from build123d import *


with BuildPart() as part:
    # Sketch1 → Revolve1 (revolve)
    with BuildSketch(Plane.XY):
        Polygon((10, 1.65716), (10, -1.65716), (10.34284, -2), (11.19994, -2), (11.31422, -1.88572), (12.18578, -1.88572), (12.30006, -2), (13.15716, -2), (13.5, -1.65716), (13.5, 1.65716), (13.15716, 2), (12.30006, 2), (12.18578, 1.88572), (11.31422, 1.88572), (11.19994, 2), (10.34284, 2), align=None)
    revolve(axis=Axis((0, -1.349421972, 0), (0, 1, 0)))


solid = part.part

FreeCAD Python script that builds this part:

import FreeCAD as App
import Part
import Sketcher
from FreeCAD import Vector


def add_polygon(sketch, points):
    """Adds a closed chain of lines whose ends are joined by coincident constraints."""
    first, n = sketch.GeometryCount, len(points)
    for a, b in zip(points, points[1:] + points[:1]):
        sketch.addGeometry(Part.LineSegment(App.Vector(*a, 0), App.Vector(*b, 0)), False)
    for i in range(n):
        sketch.addConstraint(Sketcher.Constraint("Coincident", first + i, 2, first + (i + 1) % n, 1))

doc = App.newDocument("Part")
body = doc.addObject("PartDesign::Body", "Body")

# Sketch on XY plane
sketch1 = doc.addObject("Sketcher::SketchObject", "Sketch")
body.addObject(sketch1)
sketch1.AttachmentSupport = (doc.XY_Plane, [""])
sketch1.MapMode = "FlatFace"
add_polygon(sketch1, [(10, 1.66), (10, -1.66), (10.34, -2), (11.2, -2), (11.31, -1.89), (12.19, -1.89), (12.3, -2), (13.16, -2), (13.5, -1.66), (13.5, 1.66), (13.16, 2), (12.3, 2), (12.19, 1.89), (11.31, 1.89), (11.2, 2), (10.34, 2)])  # lines 0-15
sketch1.addConstraint(Sketcher.Constraint("Vertical", 0))
sketch1.addConstraint(Sketcher.Constraint("Horizontal", 2))
sketch1.addConstraint(Sketcher.Constraint("Horizontal", 4))
sketch1.addConstraint(Sketcher.Constraint("Horizontal", 6))
sketch1.addConstraint(Sketcher.Constraint("Vertical", 8))
sketch1.addConstraint(Sketcher.Constraint("Horizontal", 10))
sketch1.addConstraint(Sketcher.Constraint("Horizontal", 12))
sketch1.addConstraint(Sketcher.Constraint("Horizontal", 14))
sketch1.addConstraint(Sketcher.Constraint("Symmetric", 6, 2, 9, 2, -1))
sketch1.addConstraint(Sketcher.Constraint("Symmetric", 4, 2, 11, 2, -1))
sketch1.addConstraint(Sketcher.Constraint("Symmetric", 2, 2, 13, 2, -1))
sketch1.addConstraint(Sketcher.Constraint("Perpendicular", 1, 3))
sketch1.addConstraint(Sketcher.Constraint("Perpendicular", 3, 5))
sketch1.addConstraint(Sketcher.Constraint("Perpendicular", 5, 7))
sketch1.addConstraint(Sketcher.Constraint("Perpendicular", 7, 9))
sketch1.addConstraint(Sketcher.Constraint("Perpendicular", 9, 11))
sketch1.addConstraint(Sketcher.Constraint("Perpendicular", 11, 13))
sketch1.addConstraint(Sketcher.Constraint("Perpendicular", 13, 15))
sketch1.addConstraint(Sketcher.Constraint("Horizontal", 2, 2, 5, 2))
sketch1.addConstraint(Sketcher.Constraint("Horizontal", 0, 2, 7, 2))
sketch1.addConstraint(Sketcher.Constraint("Horizontal", 8, 2, 15, 2))
sketch1.addConstraint(Sketcher.Constraint("Vertical", 5, 2, 10, 2))
sketch1.addConstraint(Sketcher.Constraint("Equal", 2, 6))
sketch1.addConstraint(Sketcher.Constraint("DistanceX", -1, 1, 0, 2, 10.0))
sketch1.addConstraint(Sketcher.Constraint("DistanceY", 1, 2, -1, 1, 2.0))
sketch1.addConstraint(Sketcher.Constraint("DistanceX", -1, 1, 7, 2, 13.5))
sketch1.addConstraint(Sketcher.Constraint("DistanceX", 2, 1, 2, 2, 0.8571))
sketch1.addConstraint(Sketcher.Constraint("DistanceX", 4, 1, 4, 2, 0.87156))
sketch1.addConstraint(Sketcher.Constraint("DistanceY", 0, 2, 0, 1, 3.31432))
revolution = doc.addObject("PartDesign::Revolution", "Revolution")
body.addObject(revolution)
revolution.Profile = sketch1
revolution.ReferenceAxis = (sketch1, ["V_Axis"])
revolution.Angle = 360

doc.recompute()
